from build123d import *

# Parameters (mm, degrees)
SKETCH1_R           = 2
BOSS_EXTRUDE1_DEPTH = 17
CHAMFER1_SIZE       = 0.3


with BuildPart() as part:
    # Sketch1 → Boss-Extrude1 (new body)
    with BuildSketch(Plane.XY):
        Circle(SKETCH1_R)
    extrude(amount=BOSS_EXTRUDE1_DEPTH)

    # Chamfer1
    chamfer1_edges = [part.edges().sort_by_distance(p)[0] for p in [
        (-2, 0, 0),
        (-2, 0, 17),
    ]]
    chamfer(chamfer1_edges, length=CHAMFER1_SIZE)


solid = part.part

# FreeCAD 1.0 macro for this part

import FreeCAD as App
import Part
import Sketcher
Q = App.Units.Quantity


def edges_at(feature, points):
    """Names of the edges that pass closest to the given points."""
    edges = feature.Shape.Edges
    near = lambda p: min(range(len(edges)), key=lambda i: edges[i].distToShape(Part.Vertex(*p))[0])
    return sorted({f"Edge{near(p) + 1}" for p in points})

doc = App.newDocument("Part")
body = doc.addObject("PartDesign::Body", "Body")

# Sketch on XY plane
sketch1 = doc.addObject("Sketcher::SketchObject", "Sketch")
body.addObject(sketch1)
sketch1.AttachmentSupport = (doc.XY_Plane, [""])
sketch1.MapMode = "FlatFace"
sketch1.addGeometry(Part.Circle(App.Vector(0, 0, 0), App.Vector(0, 0, 1), 2), False)
sketch1.addConstraint([
    Sketcher.Constraint("Coincident", 0, 3, -1, 1),
    Sketcher.Constraint("Diameter", 0, Q("4 mm")),
])
pad1 = doc.addObject("PartDesign::Pad", "Pad")
body.addObject(pad1)
pad1.Profile = sketch1
pad1.Length = 17
doc.recompute()

chamfer = doc.addObject("PartDesign::Chamfer", "Chamfer")
body.addObject(chamfer)
chamfer.Base = (pad1, edges_at(pad1, [(-2, 0, 0), (-2, 0, 17)]))
chamfer.Size = 0.3

doc.recompute()
